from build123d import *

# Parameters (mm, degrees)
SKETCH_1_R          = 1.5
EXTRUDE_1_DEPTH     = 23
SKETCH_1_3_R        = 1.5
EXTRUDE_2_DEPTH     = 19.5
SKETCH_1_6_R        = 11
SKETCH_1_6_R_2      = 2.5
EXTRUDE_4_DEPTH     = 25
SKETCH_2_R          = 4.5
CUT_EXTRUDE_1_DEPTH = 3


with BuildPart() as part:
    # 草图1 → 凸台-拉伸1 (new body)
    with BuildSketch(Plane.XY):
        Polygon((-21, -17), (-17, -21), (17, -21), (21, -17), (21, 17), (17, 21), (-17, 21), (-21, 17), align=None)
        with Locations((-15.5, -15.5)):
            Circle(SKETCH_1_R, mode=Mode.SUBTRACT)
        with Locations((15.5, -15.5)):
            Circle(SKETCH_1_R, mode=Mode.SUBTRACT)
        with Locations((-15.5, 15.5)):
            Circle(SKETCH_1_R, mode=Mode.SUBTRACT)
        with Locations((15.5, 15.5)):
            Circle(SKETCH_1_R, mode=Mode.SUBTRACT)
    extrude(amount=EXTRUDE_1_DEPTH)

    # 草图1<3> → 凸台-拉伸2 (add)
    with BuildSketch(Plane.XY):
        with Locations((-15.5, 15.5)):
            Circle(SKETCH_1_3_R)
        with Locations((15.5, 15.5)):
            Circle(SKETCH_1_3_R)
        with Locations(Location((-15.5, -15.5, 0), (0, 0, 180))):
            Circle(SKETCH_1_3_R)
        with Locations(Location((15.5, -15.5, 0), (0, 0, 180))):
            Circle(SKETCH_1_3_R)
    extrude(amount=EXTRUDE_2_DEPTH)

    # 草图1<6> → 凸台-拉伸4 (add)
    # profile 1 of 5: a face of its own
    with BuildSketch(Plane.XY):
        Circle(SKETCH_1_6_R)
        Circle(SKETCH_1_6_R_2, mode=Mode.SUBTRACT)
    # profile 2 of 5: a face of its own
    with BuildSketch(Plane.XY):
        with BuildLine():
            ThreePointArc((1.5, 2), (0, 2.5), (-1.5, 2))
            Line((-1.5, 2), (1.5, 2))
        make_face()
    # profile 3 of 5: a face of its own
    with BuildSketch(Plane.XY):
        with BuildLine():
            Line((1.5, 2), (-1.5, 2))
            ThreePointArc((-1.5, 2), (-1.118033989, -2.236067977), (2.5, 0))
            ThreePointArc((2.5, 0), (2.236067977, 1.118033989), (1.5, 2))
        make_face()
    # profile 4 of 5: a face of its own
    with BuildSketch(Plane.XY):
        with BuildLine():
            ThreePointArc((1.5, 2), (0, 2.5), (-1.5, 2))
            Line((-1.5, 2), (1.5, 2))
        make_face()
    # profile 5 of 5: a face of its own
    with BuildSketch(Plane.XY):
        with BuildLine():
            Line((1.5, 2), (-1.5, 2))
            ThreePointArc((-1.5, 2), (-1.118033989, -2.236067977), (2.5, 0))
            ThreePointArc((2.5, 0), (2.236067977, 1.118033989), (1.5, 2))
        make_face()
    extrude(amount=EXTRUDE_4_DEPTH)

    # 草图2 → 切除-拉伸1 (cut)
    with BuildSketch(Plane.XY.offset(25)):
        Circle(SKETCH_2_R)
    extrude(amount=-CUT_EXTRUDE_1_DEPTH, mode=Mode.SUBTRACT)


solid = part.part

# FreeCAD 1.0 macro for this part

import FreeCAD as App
import Part
import Sketcher

V = App.Vector
Q = App.Units.Quantity


def add_polygon(sketch, points):
    """Adds a closed chain of lines whose ends are joined by coincident constraints."""
    first, n = sketch.GeometryCount, len(points)
    for a, b in zip(points, points[1:] + points[:1]):
        sketch.addGeometry(Part.LineSegment(App.Vector(*a, 0), App.Vector(*b, 0)), False)
    for i in range(n):
        sketch.addConstraint(Sketcher.Constraint("Coincident", first + i, 2, first + (i + 1) % n, 1))

doc = App.newDocument("Part")
params = doc.addObject("Spreadsheet::Sheet", "Params")
for row, (alias, value) in enumerate([
    ("sketch1_diameter", "3 mm"),
    ("sketch1_width", "34 mm"),
    ("pad1_length", "23 mm"),
    ("sketch2_diameter", "3 mm"),
    ("pad2_length", "19.5 mm"),
    ("sketch3_diameter", "22 mm"),
    ("pad3_length", "25 mm"),
    ("sketch4_diameter", "9 mm"),
    ("pocket1_length", "3 mm"),
], start=1):
    params.set(f"A{row}", alias)
    params.set(f"B{row}", "=" + value)
    params.setAlias(f"B{row}", alias)

body = doc.addObject("PartDesign::Body", "Body")

# Sketch on XY plane
sketch1 = doc.addObject("Sketcher::SketchObject", "Sketch")
body.addObject(sketch1)
sketch1.AttachmentSupport = (doc.XY_Plane, [""])
sketch1.MapMode = "FlatFace"
add_polygon(sketch1, [(-21, -17), (-17, -21), (17, -21), (21, -17), (21, 17), (17, 21), (-17, 21), (-21, 17)])  # lines 0-7
sketch1.addGeometry(Part.Circle(V(-15.5, -15.5, 0), V(0, 0, 1), 1.5), False)  # 8
sketch1.addGeometry(Part.Circle(V(15.5, -15.5, 0), V(0, 0, 1), 1.5), False)  # 9
sketch1.addGeometry(Part.Circle(V(-15.5, 15.5, 0), V(0, 0, 1), 1.5), False)  # 10
sketch1.addGeometry(Part.Circle(V(15.5, 15.5, 0), V(0, 0, 1), 1.5), False)  # 11
sketch1.addConstraint([
    Sketcher.Constraint("Horizontal", 1),
    Sketcher.Constraint("Vertical", 3),
    Sketcher.Constraint("Horizontal", 5),
    Sketcher.Constraint("Vertical", 7),
    Sketcher.Constraint("Equal", 8, 9),
    Sketcher.Constraint("Equal", 9, 10),
    Sketcher.Constraint("Equal", 10, 11),
    Sketcher.Constraint("Symmetric", 9, 3, 10, 3, -1, 1),
    Sketcher.Constraint("Symmetric", 8, 3, 11, 3, -1, 1),
    Sketcher.Constraint("Symmetric", 0, 2, 4, 2, -1, 1),
    Sketcher.Constraint("Symmetric", 2, 2, 6, 2, -1, 1),
    Sketcher.Constraint("Symmetric", 8, 3, 9, 3, -2),
    Sketcher.Constraint("Perpendicular", 0, 2),
    Sketcher.Constraint("Perpendicular", 2, 4),
    Sketcher.Constraint("Perpendicular", 4, 6),
    Sketcher.Constraint("Horizontal", 3, 2, 6, 2),
    Sketcher.Constraint("Vertical", 1, 2, 4, 2),
    Sketcher.Constraint("Equal", 5, 3),
    Sketcher.Constraint("Diameter", 8, Q("3 mm")),
    Sketcher.Constraint("DistanceX", 1, 1, 1, 2, Q("34 mm")),
    Sketcher.Constraint("DistanceY", 0, 2, -1, 1, Q("21 mm")),
    Sketcher.Constraint("DistanceX", 8, 3, 9, 3, Q("31 mm")),
    Sketcher.Constraint("DistanceY", 8, 3, 10, 3, Q("31 mm")),
])
sketch1.setExpression("Constraints[26]", "Params.sketch1_diameter")
sketch1.setExpression("Constraints[27]", "Params.sketch1_width")
pad1 = doc.addObject("PartDesign::Pad", "Pad")
body.addObject(pad1)
pad1.Profile = sketch1
pad1.setExpression("Length", "Params.pad1_length")

# Sketch on XY plane
sketch2 = doc.addObject("Sketcher::SketchObject", "Sketch001")
body.addObject(sketch2)
sketch2.AttachmentSupport = (doc.XY_Plane, [""])
sketch2.MapMode = "FlatFace"
sketch2.addGeometry([
    Part.Circle(V(-15.5, 15.5, 0), V(0, 0, 1), 1.5),
    Part.Circle(V(15.5, 15.5, 0), V(0, 0, 1), 1.5),
    Part.Circle(V(-15.5, -15.5, 0), V(0, 0, 1), 1.5),
    Part.Circle(V(15.5, -15.5, 0), V(0, 0, 1), 1.5),
], False)
sketch2.addConstraint([
    Sketcher.Constraint("Equal", 0, 1),
    Sketcher.Constraint("Equal", 1, 2),
    Sketcher.Constraint("Equal", 2, 3),
    Sketcher.Constraint("Symmetric", 1, 3, 2, 3, -1, 1),
    Sketcher.Constraint("Symmetric", 0, 3, 3, 3, -1, 1),
    Sketcher.Constraint("Symmetric", 0, 3, 1, 3, -2),
    Sketcher.Constraint("Diameter", 0, Q("3 mm")),
    Sketcher.Constraint("DistanceX", 0, 3, 1, 3, Q("31 mm")),
    Sketcher.Constraint("DistanceY", 2, 3, 0, 3, Q("31 mm")),
])
sketch2.setExpression("Constraints[6]", "Params.sketch2_diameter")
pad2 = doc.addObject("PartDesign::Pad", "Pad001")
body.addObject(pad2)
pad2.Profile = sketch2
pad2.setExpression("Length", "Params.pad2_length")

# Sketch on XY plane
sketch3 = doc.addObject("Sketcher::SketchObject", "Sketch002")
body.addObject(sketch3)
sketch3.AttachmentSupport = (doc.XY_Plane, [""])
sketch3.MapMode = "FlatFace"
sketch3.addGeometry(Part.Circle(V(0, 0, 0), V(0, 0, 1), 11), False)
sketch3.addConstraint([
    Sketcher.Constraint("Coincident", 0, 3, -1, 1),
    Sketcher.Constraint("Diameter", 0, Q("22 mm")),
])
sketch3.setExpression("Constraints[1]", "Params.sketch3_diameter")
pad3 = doc.addObject("PartDesign::Pad", "Pad002")
body.addObject(pad3)
pad3.Profile = sketch3
pad3.setExpression("Length", "Params.pad3_length")

# Sketch on XY plane
sketch4 = doc.addObject("Sketcher::SketchObject", "Sketch003")
body.addObject(sketch4)
sketch4.AttachmentSupport = (doc.XY_Plane, [""])
sketch4.MapMode = "FlatFace"
sketch4.AttachmentOffset = App.Placement(V(0, 0, 25), App.Rotation())
sketch4.addGeometry(Part.Circle(V(0, 0, 0), V(0, 0, 1), 4.5), False)
sketch4.addConstraint([
    Sketcher.Constraint("Coincident", 0, 3, -1, 1),
    Sketcher.Constraint("Diameter", 0, Q("9 mm")),
])
sketch4.setExpression("Constraints[1]", "Params.sketch4_diameter")
pocket1 = doc.addObject("PartDesign::Pocket", "Pocket")
body.addObject(pocket1)
pocket1.Profile = sketch4
pocket1.setExpression("Length", "Params.pocket1_length")

doc.recompute()
